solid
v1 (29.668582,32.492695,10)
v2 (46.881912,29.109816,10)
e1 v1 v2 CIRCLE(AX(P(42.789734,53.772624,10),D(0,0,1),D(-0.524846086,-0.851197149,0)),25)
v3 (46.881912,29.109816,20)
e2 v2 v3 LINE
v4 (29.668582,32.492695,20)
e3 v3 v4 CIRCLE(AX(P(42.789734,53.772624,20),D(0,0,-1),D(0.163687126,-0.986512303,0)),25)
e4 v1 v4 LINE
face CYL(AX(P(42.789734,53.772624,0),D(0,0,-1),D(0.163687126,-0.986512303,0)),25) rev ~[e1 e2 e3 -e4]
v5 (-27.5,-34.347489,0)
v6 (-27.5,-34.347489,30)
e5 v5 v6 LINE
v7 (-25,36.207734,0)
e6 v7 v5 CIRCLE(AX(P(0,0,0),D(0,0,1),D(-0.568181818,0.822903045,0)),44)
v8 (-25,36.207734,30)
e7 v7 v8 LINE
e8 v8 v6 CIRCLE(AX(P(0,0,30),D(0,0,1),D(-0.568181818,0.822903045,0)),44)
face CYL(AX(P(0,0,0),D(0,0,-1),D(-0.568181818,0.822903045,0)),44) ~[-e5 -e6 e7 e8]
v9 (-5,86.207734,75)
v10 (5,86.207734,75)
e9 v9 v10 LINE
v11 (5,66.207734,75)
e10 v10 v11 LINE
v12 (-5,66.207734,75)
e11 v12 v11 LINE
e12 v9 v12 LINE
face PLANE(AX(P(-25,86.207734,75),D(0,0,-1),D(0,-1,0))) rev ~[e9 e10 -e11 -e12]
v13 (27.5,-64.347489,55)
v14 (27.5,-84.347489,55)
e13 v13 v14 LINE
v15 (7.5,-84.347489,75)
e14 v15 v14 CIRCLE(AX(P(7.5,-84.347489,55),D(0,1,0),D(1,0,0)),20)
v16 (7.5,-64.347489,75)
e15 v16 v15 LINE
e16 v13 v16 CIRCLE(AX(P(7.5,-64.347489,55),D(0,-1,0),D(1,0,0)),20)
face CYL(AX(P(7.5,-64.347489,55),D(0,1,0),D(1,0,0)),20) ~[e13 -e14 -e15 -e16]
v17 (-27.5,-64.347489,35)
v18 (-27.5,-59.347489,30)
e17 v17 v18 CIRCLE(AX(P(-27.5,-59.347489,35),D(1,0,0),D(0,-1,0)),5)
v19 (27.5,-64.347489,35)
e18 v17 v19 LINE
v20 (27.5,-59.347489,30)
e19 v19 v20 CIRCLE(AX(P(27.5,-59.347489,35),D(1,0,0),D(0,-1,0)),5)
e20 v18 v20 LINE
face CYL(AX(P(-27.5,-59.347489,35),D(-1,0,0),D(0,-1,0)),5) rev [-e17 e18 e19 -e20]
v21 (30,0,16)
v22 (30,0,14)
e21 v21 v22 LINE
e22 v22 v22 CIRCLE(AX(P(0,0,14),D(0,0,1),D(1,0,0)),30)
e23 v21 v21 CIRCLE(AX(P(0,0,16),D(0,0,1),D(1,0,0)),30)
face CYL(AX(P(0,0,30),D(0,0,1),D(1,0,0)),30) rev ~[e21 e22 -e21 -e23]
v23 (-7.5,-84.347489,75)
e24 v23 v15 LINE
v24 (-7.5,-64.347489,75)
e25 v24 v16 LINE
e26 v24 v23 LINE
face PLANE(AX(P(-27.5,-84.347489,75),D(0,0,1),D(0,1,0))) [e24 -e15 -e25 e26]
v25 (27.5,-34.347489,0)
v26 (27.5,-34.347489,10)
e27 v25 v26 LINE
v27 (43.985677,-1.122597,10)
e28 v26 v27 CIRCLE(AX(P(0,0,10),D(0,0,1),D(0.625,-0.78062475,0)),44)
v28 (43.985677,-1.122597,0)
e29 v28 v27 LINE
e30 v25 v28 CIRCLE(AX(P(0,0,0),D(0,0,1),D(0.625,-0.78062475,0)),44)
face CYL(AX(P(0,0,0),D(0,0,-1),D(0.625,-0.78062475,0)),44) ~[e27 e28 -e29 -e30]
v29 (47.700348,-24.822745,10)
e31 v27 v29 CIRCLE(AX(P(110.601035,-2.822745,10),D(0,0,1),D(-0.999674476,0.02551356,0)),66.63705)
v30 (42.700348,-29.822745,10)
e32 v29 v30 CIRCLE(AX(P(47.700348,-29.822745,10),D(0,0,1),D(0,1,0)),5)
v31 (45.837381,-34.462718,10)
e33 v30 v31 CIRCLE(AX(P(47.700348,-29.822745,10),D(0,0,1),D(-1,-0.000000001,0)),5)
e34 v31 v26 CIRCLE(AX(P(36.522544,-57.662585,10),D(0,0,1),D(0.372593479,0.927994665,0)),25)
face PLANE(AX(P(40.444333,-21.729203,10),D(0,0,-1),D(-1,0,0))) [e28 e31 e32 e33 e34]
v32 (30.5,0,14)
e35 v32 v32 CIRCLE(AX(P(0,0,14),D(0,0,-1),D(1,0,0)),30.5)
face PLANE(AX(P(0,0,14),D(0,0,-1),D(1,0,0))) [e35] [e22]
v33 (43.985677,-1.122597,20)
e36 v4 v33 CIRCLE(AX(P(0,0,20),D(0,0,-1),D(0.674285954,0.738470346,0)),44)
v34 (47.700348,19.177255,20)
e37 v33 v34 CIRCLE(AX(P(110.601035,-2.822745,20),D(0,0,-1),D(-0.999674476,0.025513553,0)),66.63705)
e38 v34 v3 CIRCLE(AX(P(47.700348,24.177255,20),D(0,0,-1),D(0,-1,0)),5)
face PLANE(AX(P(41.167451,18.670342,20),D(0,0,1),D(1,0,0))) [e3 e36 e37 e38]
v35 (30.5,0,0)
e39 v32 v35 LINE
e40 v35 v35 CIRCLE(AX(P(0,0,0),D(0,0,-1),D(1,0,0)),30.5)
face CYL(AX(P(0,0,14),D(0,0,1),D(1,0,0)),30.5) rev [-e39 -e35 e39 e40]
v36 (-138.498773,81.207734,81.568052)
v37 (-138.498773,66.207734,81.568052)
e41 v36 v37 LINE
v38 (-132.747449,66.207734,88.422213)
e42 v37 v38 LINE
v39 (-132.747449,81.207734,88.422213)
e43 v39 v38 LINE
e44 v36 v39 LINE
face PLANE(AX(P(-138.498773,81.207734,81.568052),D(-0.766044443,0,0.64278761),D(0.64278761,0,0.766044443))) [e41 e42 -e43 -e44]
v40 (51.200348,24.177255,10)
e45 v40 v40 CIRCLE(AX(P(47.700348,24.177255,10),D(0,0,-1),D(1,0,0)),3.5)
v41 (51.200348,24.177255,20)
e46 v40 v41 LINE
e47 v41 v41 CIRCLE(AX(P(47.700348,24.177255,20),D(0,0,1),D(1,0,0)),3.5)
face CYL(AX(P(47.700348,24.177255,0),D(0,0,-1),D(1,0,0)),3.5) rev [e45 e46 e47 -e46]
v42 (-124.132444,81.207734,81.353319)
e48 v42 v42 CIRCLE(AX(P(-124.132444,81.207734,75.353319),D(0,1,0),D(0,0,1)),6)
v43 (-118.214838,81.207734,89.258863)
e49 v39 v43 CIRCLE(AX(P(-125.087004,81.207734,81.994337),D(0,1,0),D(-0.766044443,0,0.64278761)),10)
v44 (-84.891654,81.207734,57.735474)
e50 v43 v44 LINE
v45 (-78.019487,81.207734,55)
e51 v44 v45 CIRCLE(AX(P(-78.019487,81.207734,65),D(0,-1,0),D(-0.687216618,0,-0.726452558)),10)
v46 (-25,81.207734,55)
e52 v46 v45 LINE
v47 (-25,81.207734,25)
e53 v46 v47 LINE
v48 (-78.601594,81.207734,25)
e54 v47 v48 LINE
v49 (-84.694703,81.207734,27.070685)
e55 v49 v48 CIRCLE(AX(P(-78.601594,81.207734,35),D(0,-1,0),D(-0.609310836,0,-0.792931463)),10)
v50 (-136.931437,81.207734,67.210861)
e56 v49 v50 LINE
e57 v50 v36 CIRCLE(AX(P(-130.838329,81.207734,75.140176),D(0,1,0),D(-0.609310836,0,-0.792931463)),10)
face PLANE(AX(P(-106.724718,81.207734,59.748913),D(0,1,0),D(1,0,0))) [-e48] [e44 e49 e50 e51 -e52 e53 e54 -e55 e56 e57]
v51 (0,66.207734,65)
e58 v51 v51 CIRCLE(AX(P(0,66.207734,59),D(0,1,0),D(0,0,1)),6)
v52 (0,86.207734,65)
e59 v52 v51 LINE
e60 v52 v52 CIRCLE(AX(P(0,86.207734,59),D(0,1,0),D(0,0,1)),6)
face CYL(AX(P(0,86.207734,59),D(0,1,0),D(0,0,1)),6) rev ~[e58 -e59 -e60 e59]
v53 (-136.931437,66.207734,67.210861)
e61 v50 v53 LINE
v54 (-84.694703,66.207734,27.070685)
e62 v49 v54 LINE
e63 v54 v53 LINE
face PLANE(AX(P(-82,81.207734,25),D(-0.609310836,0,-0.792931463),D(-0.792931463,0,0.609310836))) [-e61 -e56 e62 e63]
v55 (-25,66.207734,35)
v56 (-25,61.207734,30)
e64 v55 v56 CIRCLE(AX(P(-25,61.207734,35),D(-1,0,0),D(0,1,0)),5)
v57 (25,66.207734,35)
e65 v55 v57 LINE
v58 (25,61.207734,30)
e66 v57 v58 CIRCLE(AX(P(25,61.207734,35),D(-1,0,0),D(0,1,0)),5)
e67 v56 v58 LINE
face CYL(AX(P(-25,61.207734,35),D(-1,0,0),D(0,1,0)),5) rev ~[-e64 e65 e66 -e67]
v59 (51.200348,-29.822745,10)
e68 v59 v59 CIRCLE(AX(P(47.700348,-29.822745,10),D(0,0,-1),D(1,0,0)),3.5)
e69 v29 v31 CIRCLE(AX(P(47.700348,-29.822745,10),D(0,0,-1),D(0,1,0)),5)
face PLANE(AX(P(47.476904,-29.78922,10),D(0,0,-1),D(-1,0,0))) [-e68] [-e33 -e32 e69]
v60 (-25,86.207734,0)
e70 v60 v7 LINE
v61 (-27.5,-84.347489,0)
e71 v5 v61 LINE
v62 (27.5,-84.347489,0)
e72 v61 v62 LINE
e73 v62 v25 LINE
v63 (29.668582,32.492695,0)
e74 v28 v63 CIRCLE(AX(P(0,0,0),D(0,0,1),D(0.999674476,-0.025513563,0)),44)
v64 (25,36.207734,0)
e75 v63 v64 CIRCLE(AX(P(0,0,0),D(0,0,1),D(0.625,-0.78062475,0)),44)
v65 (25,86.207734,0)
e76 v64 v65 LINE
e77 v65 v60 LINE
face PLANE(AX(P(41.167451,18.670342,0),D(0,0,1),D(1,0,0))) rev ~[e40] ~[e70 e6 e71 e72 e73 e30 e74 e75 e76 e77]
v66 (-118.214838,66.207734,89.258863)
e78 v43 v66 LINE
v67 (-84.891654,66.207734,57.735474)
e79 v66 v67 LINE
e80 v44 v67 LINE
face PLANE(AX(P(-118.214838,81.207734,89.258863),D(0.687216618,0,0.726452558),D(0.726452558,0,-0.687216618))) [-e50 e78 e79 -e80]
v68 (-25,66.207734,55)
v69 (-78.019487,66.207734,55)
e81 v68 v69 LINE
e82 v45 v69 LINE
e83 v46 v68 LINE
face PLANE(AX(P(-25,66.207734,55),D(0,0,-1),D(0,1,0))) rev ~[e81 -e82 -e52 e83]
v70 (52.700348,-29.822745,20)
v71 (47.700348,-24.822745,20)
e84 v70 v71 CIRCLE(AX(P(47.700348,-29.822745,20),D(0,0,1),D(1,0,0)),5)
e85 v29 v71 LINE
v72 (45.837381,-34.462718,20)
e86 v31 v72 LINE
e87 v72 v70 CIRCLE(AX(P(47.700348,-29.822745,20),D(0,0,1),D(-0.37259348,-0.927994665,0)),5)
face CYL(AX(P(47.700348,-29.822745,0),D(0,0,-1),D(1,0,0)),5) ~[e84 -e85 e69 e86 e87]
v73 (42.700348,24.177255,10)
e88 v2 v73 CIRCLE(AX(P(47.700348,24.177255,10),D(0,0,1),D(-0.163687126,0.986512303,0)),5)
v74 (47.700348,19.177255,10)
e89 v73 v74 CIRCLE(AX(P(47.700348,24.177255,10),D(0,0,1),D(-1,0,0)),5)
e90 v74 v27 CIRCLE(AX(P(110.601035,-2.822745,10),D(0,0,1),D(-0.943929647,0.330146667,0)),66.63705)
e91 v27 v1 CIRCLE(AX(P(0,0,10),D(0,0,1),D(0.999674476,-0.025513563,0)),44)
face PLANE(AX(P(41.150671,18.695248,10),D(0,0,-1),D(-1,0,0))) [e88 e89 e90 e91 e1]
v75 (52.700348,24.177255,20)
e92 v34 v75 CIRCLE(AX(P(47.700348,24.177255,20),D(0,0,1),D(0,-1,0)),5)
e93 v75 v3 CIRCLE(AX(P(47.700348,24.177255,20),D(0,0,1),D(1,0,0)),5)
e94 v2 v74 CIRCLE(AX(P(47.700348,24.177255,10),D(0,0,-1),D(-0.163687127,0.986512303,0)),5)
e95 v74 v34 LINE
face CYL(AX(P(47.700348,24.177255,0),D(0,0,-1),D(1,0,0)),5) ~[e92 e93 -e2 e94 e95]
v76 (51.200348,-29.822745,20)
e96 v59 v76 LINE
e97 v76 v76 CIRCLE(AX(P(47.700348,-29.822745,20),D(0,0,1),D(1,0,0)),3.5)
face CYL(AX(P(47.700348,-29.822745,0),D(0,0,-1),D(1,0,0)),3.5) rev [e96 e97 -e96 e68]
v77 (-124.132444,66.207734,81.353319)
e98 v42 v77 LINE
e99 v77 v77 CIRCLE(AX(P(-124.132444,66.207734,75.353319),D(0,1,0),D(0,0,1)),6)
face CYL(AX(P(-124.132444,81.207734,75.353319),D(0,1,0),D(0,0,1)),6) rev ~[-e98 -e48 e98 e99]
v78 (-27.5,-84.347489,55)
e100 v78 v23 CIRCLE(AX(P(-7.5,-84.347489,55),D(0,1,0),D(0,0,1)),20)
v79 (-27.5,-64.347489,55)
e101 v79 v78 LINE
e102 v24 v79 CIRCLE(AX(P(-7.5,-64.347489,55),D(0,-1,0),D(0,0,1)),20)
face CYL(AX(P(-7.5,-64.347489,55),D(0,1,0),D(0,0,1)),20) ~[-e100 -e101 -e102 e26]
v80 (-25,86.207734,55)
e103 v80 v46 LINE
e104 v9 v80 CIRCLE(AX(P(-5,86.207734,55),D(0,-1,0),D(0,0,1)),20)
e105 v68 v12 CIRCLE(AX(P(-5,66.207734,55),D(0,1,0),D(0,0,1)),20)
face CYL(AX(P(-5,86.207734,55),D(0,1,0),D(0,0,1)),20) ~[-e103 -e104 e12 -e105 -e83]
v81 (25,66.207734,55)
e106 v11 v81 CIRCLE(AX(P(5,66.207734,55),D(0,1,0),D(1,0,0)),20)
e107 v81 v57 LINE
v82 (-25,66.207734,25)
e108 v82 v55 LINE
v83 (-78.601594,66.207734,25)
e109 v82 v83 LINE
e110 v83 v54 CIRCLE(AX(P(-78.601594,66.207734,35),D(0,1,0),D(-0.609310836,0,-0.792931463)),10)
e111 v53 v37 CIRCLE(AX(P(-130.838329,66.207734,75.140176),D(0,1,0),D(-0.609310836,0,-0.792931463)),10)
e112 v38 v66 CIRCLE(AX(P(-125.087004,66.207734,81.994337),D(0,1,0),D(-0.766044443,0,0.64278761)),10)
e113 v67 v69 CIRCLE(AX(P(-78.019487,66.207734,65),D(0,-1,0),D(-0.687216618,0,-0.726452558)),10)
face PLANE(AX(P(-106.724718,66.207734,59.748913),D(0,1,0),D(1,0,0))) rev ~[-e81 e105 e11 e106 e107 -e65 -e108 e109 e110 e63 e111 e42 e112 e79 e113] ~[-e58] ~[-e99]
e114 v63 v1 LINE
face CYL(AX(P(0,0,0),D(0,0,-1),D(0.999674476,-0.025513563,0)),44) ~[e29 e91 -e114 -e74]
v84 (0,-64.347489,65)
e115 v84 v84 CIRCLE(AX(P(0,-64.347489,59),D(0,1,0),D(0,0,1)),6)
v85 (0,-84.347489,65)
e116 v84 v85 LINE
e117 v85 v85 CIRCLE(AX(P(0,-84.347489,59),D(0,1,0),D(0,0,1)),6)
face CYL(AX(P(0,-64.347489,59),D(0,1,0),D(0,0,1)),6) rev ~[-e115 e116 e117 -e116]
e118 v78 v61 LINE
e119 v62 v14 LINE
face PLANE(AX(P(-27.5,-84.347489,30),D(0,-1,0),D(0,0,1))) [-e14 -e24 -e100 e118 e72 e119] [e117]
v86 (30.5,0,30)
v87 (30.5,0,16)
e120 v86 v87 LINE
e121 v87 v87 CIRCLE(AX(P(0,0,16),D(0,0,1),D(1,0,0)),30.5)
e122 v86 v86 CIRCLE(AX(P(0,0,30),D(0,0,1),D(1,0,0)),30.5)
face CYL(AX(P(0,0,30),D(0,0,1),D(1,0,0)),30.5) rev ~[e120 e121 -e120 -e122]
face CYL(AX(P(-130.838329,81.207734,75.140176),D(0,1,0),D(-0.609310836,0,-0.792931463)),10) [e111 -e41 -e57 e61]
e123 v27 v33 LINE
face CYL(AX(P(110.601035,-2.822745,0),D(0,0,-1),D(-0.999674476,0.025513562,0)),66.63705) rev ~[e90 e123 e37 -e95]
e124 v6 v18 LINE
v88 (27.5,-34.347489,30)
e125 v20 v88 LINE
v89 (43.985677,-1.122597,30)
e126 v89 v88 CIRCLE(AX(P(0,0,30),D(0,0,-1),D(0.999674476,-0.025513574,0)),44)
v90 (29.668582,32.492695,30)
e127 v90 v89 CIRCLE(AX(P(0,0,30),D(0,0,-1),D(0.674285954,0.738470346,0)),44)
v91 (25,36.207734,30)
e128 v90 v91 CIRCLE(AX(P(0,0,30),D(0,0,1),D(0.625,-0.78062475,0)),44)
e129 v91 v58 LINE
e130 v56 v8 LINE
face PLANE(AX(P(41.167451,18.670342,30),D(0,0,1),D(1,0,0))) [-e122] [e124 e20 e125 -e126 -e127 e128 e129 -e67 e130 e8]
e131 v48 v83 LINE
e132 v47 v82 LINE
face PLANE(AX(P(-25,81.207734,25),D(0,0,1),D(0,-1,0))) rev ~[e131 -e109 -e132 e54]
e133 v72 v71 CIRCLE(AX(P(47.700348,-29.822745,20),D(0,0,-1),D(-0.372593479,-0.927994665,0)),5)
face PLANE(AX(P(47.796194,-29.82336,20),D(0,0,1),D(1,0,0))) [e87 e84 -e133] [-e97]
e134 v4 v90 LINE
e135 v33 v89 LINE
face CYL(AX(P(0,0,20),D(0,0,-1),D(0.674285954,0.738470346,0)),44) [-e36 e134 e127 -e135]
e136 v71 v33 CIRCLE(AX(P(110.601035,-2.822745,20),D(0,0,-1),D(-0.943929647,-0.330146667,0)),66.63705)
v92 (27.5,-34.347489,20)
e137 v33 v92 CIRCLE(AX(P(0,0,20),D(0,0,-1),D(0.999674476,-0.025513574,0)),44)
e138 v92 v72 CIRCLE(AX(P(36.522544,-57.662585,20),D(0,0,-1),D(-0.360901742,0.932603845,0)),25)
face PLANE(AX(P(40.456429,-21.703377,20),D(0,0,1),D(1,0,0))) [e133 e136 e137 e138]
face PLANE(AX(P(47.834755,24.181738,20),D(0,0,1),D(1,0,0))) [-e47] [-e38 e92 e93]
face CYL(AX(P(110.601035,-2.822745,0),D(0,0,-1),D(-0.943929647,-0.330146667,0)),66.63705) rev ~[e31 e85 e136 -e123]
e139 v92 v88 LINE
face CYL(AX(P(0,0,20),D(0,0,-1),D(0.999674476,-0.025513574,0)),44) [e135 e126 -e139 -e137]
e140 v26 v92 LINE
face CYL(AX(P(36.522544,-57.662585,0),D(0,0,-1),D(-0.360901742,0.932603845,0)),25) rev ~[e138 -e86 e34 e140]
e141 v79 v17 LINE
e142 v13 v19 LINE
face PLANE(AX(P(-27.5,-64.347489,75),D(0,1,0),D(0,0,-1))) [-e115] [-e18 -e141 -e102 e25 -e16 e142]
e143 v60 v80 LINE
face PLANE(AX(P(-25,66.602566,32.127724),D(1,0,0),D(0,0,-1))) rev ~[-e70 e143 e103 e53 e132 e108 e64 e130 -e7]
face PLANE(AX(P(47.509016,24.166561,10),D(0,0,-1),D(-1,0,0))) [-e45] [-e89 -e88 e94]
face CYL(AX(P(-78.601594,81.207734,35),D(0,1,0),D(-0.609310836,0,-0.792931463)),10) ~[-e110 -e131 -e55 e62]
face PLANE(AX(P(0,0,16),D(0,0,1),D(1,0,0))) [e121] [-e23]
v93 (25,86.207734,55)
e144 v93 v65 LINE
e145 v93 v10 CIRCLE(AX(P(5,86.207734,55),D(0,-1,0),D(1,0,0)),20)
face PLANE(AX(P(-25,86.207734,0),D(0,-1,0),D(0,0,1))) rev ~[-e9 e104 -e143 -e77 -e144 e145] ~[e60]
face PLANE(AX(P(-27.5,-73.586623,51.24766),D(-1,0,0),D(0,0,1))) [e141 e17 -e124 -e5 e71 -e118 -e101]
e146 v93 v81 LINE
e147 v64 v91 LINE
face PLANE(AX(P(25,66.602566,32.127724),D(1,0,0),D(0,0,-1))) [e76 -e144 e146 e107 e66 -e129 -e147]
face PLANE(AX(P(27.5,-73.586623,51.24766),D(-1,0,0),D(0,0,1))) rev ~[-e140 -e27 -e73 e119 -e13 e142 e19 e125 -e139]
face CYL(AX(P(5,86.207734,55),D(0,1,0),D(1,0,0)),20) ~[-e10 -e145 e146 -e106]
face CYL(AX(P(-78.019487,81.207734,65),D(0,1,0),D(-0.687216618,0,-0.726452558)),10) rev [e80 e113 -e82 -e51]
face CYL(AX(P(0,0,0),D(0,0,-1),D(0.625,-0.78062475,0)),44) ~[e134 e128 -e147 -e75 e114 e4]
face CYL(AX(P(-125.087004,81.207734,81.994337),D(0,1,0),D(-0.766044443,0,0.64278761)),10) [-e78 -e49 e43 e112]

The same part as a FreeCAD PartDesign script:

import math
import FreeCAD as App
import Part
import Sketcher

V = App.Vector
Q = App.Units.Quantity

doc = App.newDocument("Part")
body = doc.addObject("PartDesign::Body", "Body")

sketch1 = body.newObject("Sketcher::SketchObject", "Sketch")
sketch1.AttachmentSupport = (doc.getObject("XY_Plane"), [""])
sketch1.MapMode = "FlatFace"
sketch1.addGeometry(Part.LineSegment(V(-25, 86.207734, 0), V(-25, 36.207734, 0)), False)
sketch1.addGeometry(Part.ArcOfCircle(Part.Circle(V(0, 0, 0), V(0, 0, 1), 44), math.radians(124.623535), math.radians(231.317813)), False)
sketch1.addGeometry(Part.LineSegment(V(-27.5, -34.347489, 0), V(-27.5, -84.347489, 0)), False)
sketch1.addGeometry(Part.LineSegment(V(-27.5, -84.347489, 0), V(27.5, -84.347489, 0)), False)
sketch1.addGeometry(Part.LineSegment(V(27.5, -84.347489, 0), V(27.5, -34.347489, 0)), False)
sketch1.addGeometry(Part.ArcOfCircle(Part.Circle(V(0, 0, 0), V(0, 0, 1), 44), math.radians(-51.317813), math.radians(55.376465)), False)
sketch1.addGeometry(Part.LineSegment(V(25, 36.207734, 0), V(25, 86.207734, 0)), False)
sketch1.addGeometry(Part.LineSegment(V(25, 86.207734, 0), V(-25, 86.207734, 0)), False)
sketch1.addConstraint(Sketcher.Constraint("Coincident", 0, 2, 1, 1))
sketch1.addConstraint(Sketcher.Constraint("Coincident", 1, 2, 2, 1))
sketch1.addConstraint(Sketcher.Constraint("Coincident", 2, 2, 3, 1))
sketch1.addConstraint(Sketcher.Constraint("Coincident", 3, 2, 4, 1))
sketch1.addConstraint(Sketcher.Constraint("Coincident", 4, 2, 5, 1))
sketch1.addConstraint(Sketcher.Constraint("Coincident", 5, 2, 6, 1))
sketch1.addConstraint(Sketcher.Constraint("Coincident", 6, 2, 7, 1))
sketch1.addConstraint(Sketcher.Constraint("Coincident", 7, 2, 0, 1))
sketch1.addConstraint(Sketcher.Constraint("Vertical", 0))
sketch1.addConstraint(Sketcher.Constraint("Vertical", 2))
sketch1.addConstraint(Sketcher.Constraint("Horizontal", 3))
sketch1.addConstraint(Sketcher.Constraint("Vertical", 4))
sketch1.addConstraint(Sketcher.Constraint("Vertical", 6))
sketch1.addConstraint(Sketcher.Constraint("Horizontal", 7))
sketch1.addConstraint(Sketcher.Constraint("Coincident", 1, 3, -1, 1))
sketch1.addConstraint(Sketcher.Constraint("Coincident", 5, 3, -1, 1))
sketch1.addConstraint(Sketcher.Constraint("Equal", 1, 5))
sketch1.addConstraint(Sketcher.Constraint("Horizontal", 1, 2, 4, 2))
sketch1.addConstraint(Sketcher.Constraint("Horizontal", 0, 2, 5, 2))
sketch1.addConstraint(Sketcher.Constraint("Equal", 7, 0))
sketch1.addConstraint(Sketcher.Constraint("Equal", 0, 2))
sketch1.addConstraint(Sketcher.Constraint("Radius", 1, 44.0))
sketch1.addConstraint(Sketcher.Constraint("DistanceX", 3, 1, 3, 2, 55.0))
sketch1.addConstraint(Sketcher.Constraint("DistanceX", 7, 2, 7, 1, 50.0))
pad1 = body.newObject("PartDesign::Pad", "Pad")
pad1.Profile = sketch1
pad1.Length = 30

sketch2 = body.newObject("Sketcher::SketchObject", "Sketch001")
sketch2.AttachmentSupport = (doc.getObject("YZ_Plane"), [""])
sketch2.MapMode = "FlatFace"
sketch2.AttachmentOffset = App.Placement(V(0, 0, -27.5), App.Rotation())
sketch2.addGeometry(Part.LineSegment(V(-59.347489, 30, 0), V(-84.347489, 30, 0)), False)
sketch2.addGeometry(Part.LineSegment(V(-84.347489, 30, 0), V(-84.347489, 75, 0)), False)
sketch2.addGeometry(Part.LineSegment(V(-84.347489, 75, 0), V(-64.347489, 75, 0)), False)
sketch2.addGeometry(Part.LineSegment(V(-64.347489, 75, 0), V(-64.347489, 35, 0)), False)
sketch2.addGeometry(Part.ArcOfCircle(Part.Circle(V(-59.347489, 35, 0), V(0, 0, 1), 5), math.radians(180), math.radians(270)), False)
sketch2.addConstraint(Sketcher.Constraint("Coincident", 0, 2, 1, 1))
sketch2.addConstraint(Sketcher.Constraint("Coincident", 1, 2, 2, 1))
sketch2.addConstraint(Sketcher.Constraint("Coincident", 2, 2, 3, 1))
sketch2.addConstraint(Sketcher.Constraint("Tangent", 3, 2, 4, 1))
sketch2.addConstraint(Sketcher.Constraint("Tangent", 4, 2, 0, 1))
sketch2.addConstraint(Sketcher.Constraint("Horizontal", 0))
sketch2.addConstraint(Sketcher.Constraint("Vertical", 1))
sketch2.addConstraint(Sketcher.Constraint("Horizontal", 2))
sketch2.addConstraint(Sketcher.Constraint("Vertical", 3))
sketch2.addConstraint(Sketcher.Constraint("Radius", 4, 5.0))
sketch2.addConstraint(Sketcher.Constraint("DistanceX", 0, 2, 0, 1, 25.0))
sketch2.addConstraint(Sketcher.Constraint("DistanceY", 1, 1, 1, 2, 45.0))
sketch2.addConstraint(Sketcher.Constraint("DistanceY", -1, 1, 4, 3, 35.0))
sketch2.addConstraint(Sketcher.Constraint("DistanceX", 4, 3, -1, 1, 59.347489))
pad2 = body.newObject("PartDesign::Pad", "Pad001")
pad2.Profile = sketch2
pad2.Length = 55

sketch3 = body.newObject("Sketcher::SketchObject", "Sketch002")
sketch3.AttachmentSupport = (doc.getObject("YZ_Plane"), [""])
sketch3.MapMode = "FlatFace"
sketch3.AttachmentOffset = App.Placement(V(0, 0, -25), App.Rotation())
sketch3.addGeometry(Part.LineSegment(V(66.207734, 75, 0), V(86.207734, 75, 0)), False)
sketch3.addGeometry(Part.LineSegment(V(86.207734, 75, 0), V(86.207734, 0, 0)), False)
sketch3.addGeometry(Part.LineSegment(V(86.207734, 0, 0), V(36.207734, 0, 0)), False)
sketch3.addGeometry(Part.LineSegment(V(36.207734, 0, 0), V(36.207734, 30, 0)), False)
sketch3.addGeometry(Part.LineSegment(V(36.207734, 30, 0), V(61.207734, 30, 0)), False)
sketch3.addGeometry(Part.ArcOfCircle(Part.Circle(V(61.207734, 35, 0), V(0, 0, 1), 5), math.radians(-90), math.radians(0)), False)
sketch3.addGeometry(Part.LineSegment(V(66.207734, 35, 0), V(66.207734, 75, 0)), False)
sketch3.addConstraint(Sketcher.Constraint("Coincident", 0, 2, 1, 1))
sketch3.addConstraint(Sketcher.Constraint("Coincident", 1, 2, 2, 1))
sketch3.addConstraint(Sketcher.Constraint("Coincident", 2, 2, 3, 1))
sketch3.addConstraint(Sketcher.Constraint("Coincident", 3, 2, 4, 1))
sketch3.addConstraint(Sketcher.Constraint("Tangent", 4, 2, 5, 1))
sketch3.addConstraint(Sketcher.Constraint("Tangent", 5, 2, 6, 1))
sketch3.addConstraint(Sketcher.Constraint("Coincident", 6, 2, 0, 1))
sketch3.addConstraint(Sketcher.Constraint("Horizontal", 0))
sketch3.addConstraint(Sketcher.Constraint("Vertical", 1))
sketch3.addConstraint(Sketcher.Constraint("Horizontal", 2))
sketch3.addConstraint(Sketcher.Constraint("Vertical", 3))
sketch3.addConstraint(Sketcher.Constraint("Horizontal", 4))
sketch3.addConstraint(Sketcher.Constraint("Vertical", 6))
sketch3.addConstraint(Sketcher.Constraint("PointOnObject", 1, 2, -1))
sketch3.addConstraint(Sketcher.Constraint("Radius", 5, 5.0))
sketch3.addConstraint(Sketcher.Constraint("DistanceX", 0, 1, 0, 2, 20.0))
sketch3.addConstraint(Sketcher.Constraint("DistanceX", 2, 2, 2, 1, 50.0))
sketch3.addConstraint(Sketcher.Constraint("DistanceY", 1, 2, 1, 1, 75.0))
sketch3.addConstraint(Sketcher.Constraint("DistanceY", 3, 1, 3, 2, 30.0))
sketch3.addConstraint(Sketcher.Constraint("DistanceX", -1, 1, 5, 3, 61.207734))
pad3 = body.newObject("PartDesign::Pad", "Pad002")
pad3.Profile = sketch3
pad3.Length = 50

sketch4 = body.newObject("Sketcher::SketchObject", "Sketch003")
sketch4.AttachmentSupport = (doc.getObject("XZ_Plane"), [""])
sketch4.MapMode = "FlatFace"
sketch4.AttachmentOffset = App.Placement(V(0, 0, 64.347489), App.Rotation())
sketch4.addGeometry(Part.LineSegment(V(-27.5, 75, 0), V(-7.5, 75, 0)), False)
sketch4.addGeometry(Part.ArcOfCircle(Part.Circle(V(-7.5, 55, 0), V(0, 0, 1), 20), math.radians(90), math.radians(180)), False)
sketch4.addGeometry(Part.LineSegment(V(-27.5, 55, 0), V(-27.5, 75, 0)), False)
sketch4.addGeometry(Part.ArcOfCircle(Part.Circle(V(7.5, 55, 0), V(0, 0, 1), 20), math.radians(0), math.radians(90)), False)
sketch4.addGeometry(Part.LineSegment(V(7.5, 75, 0), V(27.5, 75, 0)), False)
sketch4.addGeometry(Part.LineSegment(V(27.5, 75, 0), V(27.5, 55, 0)), False)
sketch4.addGeometry(Part.Circle(V(0, 59, 0), V(0, 0, 1), 6), False)
sketch4.addConstraint(Sketcher.Constraint("Tangent", 0, 2, 1, 1))
sketch4.addConstraint(Sketcher.Constraint("Tangent", 1, 2, 2, 1))
sketch4.addConstraint(Sketcher.Constraint("Coincident", 2, 2, 0, 1))
sketch4.addConstraint(Sketcher.Constraint("Tangent", 3, 2, 4, 1))
sketch4.addConstraint(Sketcher.Constraint("Coincident", 4, 2, 5, 1))
sketch4.addConstraint(Sketcher.Constraint("Tangent", 5, 2, 3, 1))
sketch4.addConstraint(Sketcher.Constraint("Horizontal", 0))
sketch4.addConstraint(Sketcher.Constraint("Vertical", 2))
sketch4.addConstraint(Sketcher.Constraint("Horizontal", 4))
sketch4.addConstraint(Sketcher.Constraint("Vertical", 5))
sketch4.addConstraint(Sketcher.Constraint("Equal", 1, 3))
sketch4.addConstraint(Sketcher.Constraint("Symmetric", 1, 3, 3, 3, -2))
sketch4.addConstraint(Sketcher.Constraint("PointOnObject", 6, 3, -2))
sketch4.addConstraint(Sketcher.Constraint("Diameter", 6, 12.0))
sketch4.addConstraint(Sketcher.Constraint("Radius", 1, 20.0))
sketch4.addConstraint(Sketcher.Constraint("DistanceY", -1, 1, 1, 3, 55.0))
sketch4.addConstraint(Sketcher.Constraint("DistanceY", -1, 1, 6, 3, 59.0))
sketch4.addConstraint(Sketcher.Constraint("DistanceX", 1, 3, 3, 3, 15.0))
pocket1 = body.newObject("PartDesign::Pocket", "Pocket")
pocket1.Profile = sketch4
pocket1.Type = "ThroughAll"
pocket1.Reversed = True

sketch5 = body.newObject("Sketcher::SketchObject", "Sketch004")
sketch5.AttachmentSupport = (doc.getObject("XZ_Plane"), [""])
sketch5.MapMode = "FlatFace"
sketch5.AttachmentOffset = App.Placement(V(0, 0, -86.207734), App.Rotation())
sketch5.addGeometry(Part.Circle(V(0, 59, 0), V(0, 0, 1), 6), False)
sketch5.addGeometry(Part.ArcOfCircle(Part.Circle(V(-5, 55, 0), V(0, 0, 1), 20), math.radians(90), math.radians(180)), False)
sketch5.addGeometry(Part.LineSegment(V(-25, 55, 0), V(-25, 75, 0)), False)
sketch5.addGeometry(Part.LineSegment(V(-25, 75, 0), V(-5, 75, 0)), False)
sketch5.addGeometry(Part.LineSegment(V(25, 75, 0), V(25, 55, 0)), False)
sketch5.addGeometry(Part.ArcOfCircle(Part.Circle(V(5, 55, 0), V(0, 0, 1), 20), math.radians(0), math.radians(90)), False)
sketch5.addGeometry(Part.LineSegment(V(5, 75, 0), V(25, 75, 0)), False)
sketch5.addConstraint(Sketcher.Constraint("Tangent", 1, 2, 2, 1))
sketch5.addConstraint(Sketcher.Constraint("Coincident", 2, 2, 3, 1))
sketch5.addConstraint(Sketcher.Constraint("Tangent", 3, 2, 1, 1))
sketch5.addConstraint(Sketcher.Constraint("Tangent", 4, 2, 5, 1))
sketch5.addConstraint(Sketcher.Constraint("Tangent", 5, 2, 6, 1))
sketch5.addConstraint(Sketcher.Constraint("Coincident", 6, 2, 4, 1))
sketch5.addConstraint(Sketcher.Constraint("Vertical", 2))
sketch5.addConstraint(Sketcher.Constraint("Horizontal", 3))
sketch5.addConstraint(Sketcher.Constraint("Vertical", 4))
sketch5.addConstraint(Sketcher.Constraint("Horizontal", 6))
sketch5.addConstraint(Sketcher.Constraint("Equal", 1, 5))
sketch5.addConstraint(Sketcher.Constraint("Symmetric", 1, 3, 5, 3, -2))
sketch5.addConstraint(Sketcher.Constraint("PointOnObject", 0, 3, -2))
sketch5.addConstraint(Sketcher.Constraint("Diameter", 0, 12.0))
sketch5.addConstraint(Sketcher.Constraint("Radius", 1, 20.0))
sketch5.addConstraint(Sketcher.Constraint("DistanceY", -1, 1, 0, 3, 59.0))
sketch5.addConstraint(Sketcher.Constraint("DistanceX", 1, 3, -1, 1, 5.0))
sketch5.addConstraint(Sketcher.Constraint("DistanceY", -1, 1, 1, 3, 55.0))
pocket2 = body.newObject("PartDesign::Pocket", "Pocket001")
pocket2.Profile = sketch5
pocket2.Length = 50
pocket2.Reversed = True

sketch6 = body.newObject("Sketcher::SketchObject", "Sketch005")
sketch6.AttachmentSupport = (doc.getObject("YZ_Plane"), [""])
sketch6.MapMode = "FlatFace"
sketch6.AttachmentOffset = App.Placement(V(0, 0, -25), App.Rotation())
sketch6.addGeometry(Part.LineSegment(V(66.207734, 55, 0), V(81.207734, 55, 0)), False)
sketch6.addGeometry(Part.LineSegment(V(81.207734, 55, 0), V(81.207734, 25, 0)), False)
sketch6.addGeometry(Part.LineSegment(V(81.207734, 25, 0), V(66.207734, 25, 0)), False)
sketch6.addGeometry(Part.LineSegment(V(66.207734, 25, 0), V(66.207734, 55, 0)), False)
sketch6.addConstraint(Sketcher.Constraint("Coincident", 0, 2, 1, 1))
sketch6.addConstraint(Sketcher.Constraint("Coincident", 1, 2, 2, 1))
sketch6.addConstraint(Sketcher.Constraint("Coincident", 2, 2, 3, 1))
sketch6.addConstraint(Sketcher.Constraint("Coincident", 3, 2, 0, 1))
sketch6.addConstraint(Sketcher.Constraint("Horizontal", 0))
sketch6.addConstraint(Sketcher.Constraint("Vertical", 1))
sketch6.addConstraint(Sketcher.Constraint("Horizontal", 2))
sketch6.addConstraint(Sketcher.Constraint("Vertical", 3))
sketch6.addConstraint(Sketcher.Constraint("DistanceX", 0, 1, 0, 2, 15.0))
sketch6.addConstraint(Sketcher.Constraint("DistanceY", 1, 2, 1, 1, 30.0))
sketch6.addConstraint(Sketcher.Constraint("DistanceY", -1, 1, 0, 2, 55.0))
sketch6.addConstraint(Sketcher.Constraint("DistanceX", -1, 1, 0, 2, 81.207734))
pad4 = body.newObject("PartDesign::Pad", "Pad003")
pad4.Profile = sketch6
pad4.Length = 57
pad4.Reversed = True

sketch7 = body.newObject("Sketcher::SketchObject", "Sketch006")
sketch7.AttachmentSupport = (doc.getObject("XZ_Plane"), [""])
sketch7.MapMode = "FlatFace"
sketch7.AttachmentOffset = App.Placement(V(0, 0, -81.207734), App.Rotation())
sketch7.addGeometry(Part.LineSegment(V(-82, 25, 0), V(-136.931437, 67.210861, 0)), False)
sketch7.addGeometry(Part.ArcOfCircle(Part.Circle(V(-130.838329, 75.140176, 0), V(0, 0, 1), 10), math.radians(140), math.radians(232.460311)), False)
sketch7.addGeometry(Part.LineSegment(V(-138.498773, 81.568052, 0), V(-132.747449, 88.422213, 0)), False)
sketch7.addGeometry(Part.ArcOfCircle(Part.Circle(V(-125.087004, 81.994337, 0), V(0, 0, 1), 10), math.radians(46.589818), math.radians(140)), False)
sketch7.addGeometry(Part.LineSegment(V(-118.214838, 89.258863, 0), V(-84.891654, 57.735474, 0)), False)
sketch7.addGeometry(Part.ArcOfCircle(Part.Circle(V(-78.019487, 65, 0), V(0, 0, 1), 10), math.radians(-133.410182), math.radians(-90)), False)
sketch7.addGeometry(Part.LineSegment(V(-78.019487, 55, 0), V(-82, 55, 0)), False)
sketch7.addGeometry(Part.LineSegment(V(-82, 55, 0), V(-82, 25, 0)), False)
sketch7.addConstraint(Sketcher.Constraint("Tangent", 0, 2, 1, 2))
sketch7.addConstraint(Sketcher.Constraint("Tangent", 1, 1, 2, 1))
sketch7.addConstraint(Sketcher.Constraint("Tangent", 2, 2, 3, 2))
sketch7.addConstraint(Sketcher.Constraint("Tangent", 3, 1, 4, 1))
sketch7.addConstraint(Sketcher.Constraint("Tangent", 4, 2, 5, 1))
sketch7.addConstraint(Sketcher.Constraint("Tangent", 5, 2, 6, 1))
sketch7.addConstraint(Sketcher.Constraint("Coincident", 6, 2, 7, 1))
sketch7.addConstraint(Sketcher.Constraint("Coincident", 7, 2, 0, 1))
sketch7.addConstraint(Sketcher.Constraint("Horizontal", 6))
sketch7.addConstraint(Sketcher.Constraint("Vertical", 7))
sketch7.addConstraint(Sketcher.Constraint("Equal", 1, 3))
sketch7.addConstraint(Sketcher.Constraint("Equal", 3, 5))
sketch7.addConstraint(Sketcher.Constraint("Radius", 1, 10.0))
sketch7.addConstraint(Sketcher.Constraint("DistanceY", 7, 2, 7, 1, 30.0))
sketch7.addConstraint(Sketcher.Constraint("Angle", 2, Q("50 deg")))
sketch7.addConstraint(Sketcher.Constraint("DistanceY", -1, 1, 5, 3, 65.0))
sketch7.addConstraint(Sketcher.Constraint("DistanceX", 6, 2, -1, 1, 82.0))
sketch7.addConstraint(Sketcher.Constraint("DistanceY", 0, 2, 3, 1, 22.048002))
sketch7.addConstraint(Sketcher.Constraint("Distance", 0, 69.2764))
sketch7.addConstraint(Sketcher.Constraint("DistanceX", 0, 2, 3, 1, 18.716599))
sketch7.addConstraint(Sketcher.Constraint("DistanceY", 4, 2, 1, 3, 17.404701))
pad5 = body.newObject("PartDesign::Pad", "Pad004")
pad5.Profile = sketch7
pad5.Length = 15

sketch8 = body.newObject("Sketcher::SketchObject", "Sketch007")
sketch8.AttachmentSupport = (doc.getObject("XZ_Plane"), [""])
sketch8.MapMode = "FlatFace"
sketch8.AttachmentOffset = App.Placement(V(0, 0, -81.207734), App.Rotation())
sketch8.addGeometry(Part.LineSegment(V(-82, 25, 0), V(-84.694703, 27.070685, 0)), False)
sketch8.addGeometry(Part.ArcOfCircle(Part.Circle(V(-78.601594, 35, 0), V(0, 0, 1), 10), math.radians(-127.539689), math.radians(-90)), False)
sketch8.addGeometry(Part.LineSegment(V(-78.601594, 25, 0), V(-82, 25, 0)), False)
sketch8.addConstraint(Sketcher.Constraint("Tangent", 0, 2, 1, 1))
sketch8.addConstraint(Sketcher.Constraint("Tangent", 1, 2, 2, 1))
sketch8.addConstraint(Sketcher.Constraint("Coincident", 2, 2, 0, 1))
sketch8.addConstraint(Sketcher.Constraint("Horizontal", 2))
sketch8.addConstraint(Sketcher.Constraint("Radius", 1, 10.0))
sketch8.addConstraint(Sketcher.Constraint("DistanceY", -1, 1, 1, 3, 35.0))
sketch8.addConstraint(Sketcher.Constraint("DistanceX", 2, 2, -1, 1, 82.0))
sketch8.addConstraint(Sketcher.Constraint("DistanceX", 2, 2, 2, 1, 3.398406))
pocket3 = body.newObject("PartDesign::Pocket", "Pocket002")
pocket3.Profile = sketch8
pocket3.Length = 20
pocket3.Reversed = True

sketch9 = body.newObject("Sketcher::SketchObject", "Sketch008")
sketch9.AttachmentSupport = (doc.getObject("XZ_Plane"), [""])
sketch9.MapMode = "FlatFace"
sketch9.AttachmentOffset = App.Placement(V(0, 0, -81.207734), App.Rotation())
sketch9.addGeometry(Part.Circle(V(-124.132444, 75.353319, 0), V(0, 0, 1), 6), False)
sketch9.addConstraint(Sketcher.Constraint("Diameter", 0, 12.0))
sketch9.addConstraint(Sketcher.Constraint("DistanceY", -1, 1, 0, 3, 75.353319))
sketch9.addConstraint(Sketcher.Constraint("DistanceX", 0, 3, -1, 1, 124.132444))
pocket4 = body.newObject("PartDesign::Pocket", "Pocket003")
pocket4.Profile = sketch9
pocket4.Length = 20
pocket4.Reversed = True

sketch10 = body.newObject("Sketcher::SketchObject", "Sketch009")
sketch10.AttachmentSupport = (doc.getObject("XY_Plane"), [""])
sketch10.MapMode = "FlatFace"
sketch10.AttachmentOffset = App.Placement(V(0, 0, 30), App.Rotation())
sketch10.addGeometry(Part.Circle(V(0, 0, 0), V(0, 0, 1), 30), False)
sketch10.addConstraint(Sketcher.Constraint("Coincident", 0, 3, -1, 1))
sketch10.addConstraint(Sketcher.Constraint("Diameter", 0, 60.0))
pocket5 = body.newObject("PartDesign::Pocket", "Pocket004")
pocket5.Profile = sketch10
pocket5.Type = "ThroughAll"

sketch11 = body.newObject("Sketcher::SketchObject", "Sketch010")
sketch11.AttachmentSupport = (doc.getObject("XY_Plane"), [""])
sketch11.MapMode = "FlatFace"
sketch11.AttachmentOffset = App.Placement(V(0, 0, 30), App.Rotation())
sketch11.addGeometry(Part.Circle(V(0, 0, 0), V(0, 0, 1), 30.5), False)
sketch11.addConstraint(Sketcher.Constraint("Coincident", 0, 3, -1, 1))
sketch11.addConstraint(Sketcher.Constraint("Diameter", 0, 61.0))
pocket6 = body.newObject("PartDesign::Pocket", "Pocket005")
pocket6.Profile = sketch11
pocket6.Length = 14

sketch12 = body.newObject("Sketcher::SketchObject", "Sketch011")
sketch12.AttachmentSupport = (doc.getObject("XY_Plane"), [""])
sketch12.MapMode = "FlatFace"
sketch12.AttachmentOffset = App.Placement(V(0, 0, 14), App.Rotation())
sketch12.addGeometry(Part.Circle(V(0, 0, 0), V(0, 0, 1), 30.5), False)
sketch12.addConstraint(Sketcher.Constraint("Coincident", 0, 3, -1, 1))
sketch12.addConstraint(Sketcher.Constraint("Diameter", 0, 61.0))
pocket7 = body.newObject("PartDesign::Pocket", "Pocket006")
pocket7.Profile = sketch12
pocket7.Length = 14

sketch13 = body.newObject("Sketcher::SketchObject", "Sketch012")
sketch13.AttachmentSupport = (doc.getObject("XY_Plane"), [""])
sketch13.MapMode = "FlatFace"
sketch13.addGeometry(Part.ArcOfCircle(Part.Circle(V(0, 0, 0), V(0, 0, 1), 44), math.radians(-1.461978), math.radians(47.601275)), False)
sketch13.addGeometry(Part.ArcOfCircle(Part.Circle(V(110.601035, -2.822745, 0), V(0, 0, 1), 66.63705), math.radians(160.722322), math.radians(178.538022)), False)
sketch13.addGeometry(Part.ArcOfCircle(Part.Circle(V(47.700348, 24.177255, 0), V(0, 0, 1), 5), math.radians(-90), math.radians(99.420975)), False)
sketch13.addGeometry(Part.ArcOfCircle(Part.Circle(V(42.789734, 53.772624, 0), V(0, 0, 1), 25), math.radians(-121.657882), math.radians(-80.579025)), False)
sketch13.addGeometry(Part.Circle(V(47.700348, 24.177255, 0), V(0, 0, 1), 3.5), False)
sketch13.addGeometry(Part.ArcOfCircle(Part.Circle(V(0, 0, 0), V(0, 0, 1), 44), math.radians(-51.317813), math.radians(-1.461978)), False)
sketch13.addGeometry(Part.ArcOfCircle(Part.Circle(V(36.522544, -57.662585, 0), V(0, 0, 1), 25), math.radians(68.124347), math.radians(111.155585)), False)
sketch13.addGeometry(Part.ArcOfCircle(Part.Circle(V(47.700348, -29.822745, 0), V(0, 0, 1), 5), math.radians(-111.875653), math.radians(90)), False)
sketch13.addGeometry(Part.ArcOfCircle(Part.Circle(V(110.601035, -2.822745, 0), V(0, 0, 1), 66.63705), math.radians(178.538022), math.radians(199.277678)), False)
sketch13.addGeometry(Part.Circle(V(47.700348, -29.822745, 0), V(0, 0, 1), 3.5), False)
sketch13.addConstraint(Sketcher.Constraint("Tangent", 0, 1, 1, 2))
sketch13.addConstraint(Sketcher.Constraint("Coincident", 1, 1, 2, 1))
sketch13.addConstraint(Sketcher.Constraint("Tangent", 2, 2, 3, 2))
sketch13.addConstraint(Sketcher.Constraint("Coincident", 3, 1, 0, 2))
sketch13.addConstraint(Sketcher.Constraint("Coincident", 5, 1, 6, 2))
sketch13.addConstraint(Sketcher.Constraint("Tangent", 6, 1, 7, 1))
sketch13.addConstraint(Sketcher.Constraint("Coincident", 7, 2, 8, 2))
sketch13.addConstraint(Sketcher.Constraint("Tangent", 8, 1, 5, 2))
sketch13.addConstraint(Sketcher.Constraint("Coincident", 0, 3, -1, 1))
sketch13.addConstraint(Sketcher.Constraint("Coincident", 5, 3, -1, 1))
sketch13.addConstraint(Sketcher.Constraint("Coincident", 4, 3, 2, 3))
sketch13.addConstraint(Sketcher.Constraint("Coincident", 8, 3, 1, 3))
sketch13.addConstraint(Sketcher.Constraint("Coincident", 9, 3, 7, 3))
sketch13.addConstraint(Sketcher.Constraint("Equal", 0, 5))
sketch13.addConstraint(Sketcher.Constraint("Equal", 3, 6))
sketch13.addConstraint(Sketcher.Constraint("Equal", 2, 7))
sketch13.addConstraint(Sketcher.Constraint("Equal", 4, 9))
sketch13.addConstraint(Sketcher.Constraint("Vertical", 4, 3, 7, 3))
sketch13.addConstraint(Sketcher.Constraint("Vertical", 9, 3, 1, 1))
sketch13.addConstraint(Sketcher.Constraint("Vertical", 1, 1, 7, 2))
sketch13.addConstraint(Sketcher.Constraint("Diameter", 4, 7.0))
sketch13.addConstraint(Sketcher.Constraint("Radius", 0, 44.0))
sketch13.addConstraint(Sketcher.Constraint("Radius", 2, 5.0))
sketch13.addConstraint(Sketcher.Constraint("Radius", 3, 25.0))
sketch13.addConstraint(Sketcher.Constraint("DistanceY", 1, 3, 2, 3, 27.0))
sketch13.addConstraint(Sketcher.Constraint("DistanceX", -1, 1, 5, 1, 27.5))
sketch13.addConstraint(Sketcher.Constraint("Radius", 1, 66.63705))
sketch13.addConstraint(Sketcher.Constraint("DistanceX", 3, 3, 1, 3, 67.811301))
sketch13.addConstraint(Sketcher.Constraint("DistanceX", -1, 1, 3, 1, 29.668582))
pad6 = body.newObject("PartDesign::Pad", "Pad005")
pad6.Profile = sketch13
pad6.Length = 30

sketch14 = body.newObject("Sketcher::SketchObject", "Sketch013")
sketch14.AttachmentSupport = (doc.getObject("XY_Plane"), [""])
sketch14.MapMode = "FlatFace"
sketch14.AttachmentOffset = App.Placement(V(0, 0, 20), App.Rotation())
sketch14.addGeometry(Part.ArcOfCircle(Part.Circle(V(42.789734, 53.772624, 0), V(0, 0, 1), 25), math.radians(-121.657882), math.radians(-80.579025)), False)
sketch14.addGeometry(Part.ArcOfCircle(Part.Circle(V(0, 0, 0), V(0, 0, 1), 44), math.radians(-1.461979), math.radians(47.601275)), False)
sketch14.addGeometry(Part.ArcOfCircle(Part.Circle(V(110.601035, -2.822745, 0), V(0, 0, 1), 66.63705), math.radians(160.722322), math.radians(178.538022)), False)
sketch14.addGeometry(Part.ArcOfCircle(Part.Circle(V(47.700348, 24.177255, 0), V(0, 0, 1), 5), math.radians(-90), math.radians(0)), False)
sketch14.addGeometry(Part.ArcOfCircle(Part.Circle(V(47.700348, 24.177255, 0), V(0, 0, 1), 5), math.radians(0), math.radians(99.420975)), False)
sketch14.addGeometry(Part.Circle(V(47.700348, 24.177255, 0), V(0, 0, 1), 3.5), False)
sketch14.addGeometry(Part.ArcOfCircle(Part.Circle(V(110.601035, -2.822745, 0), V(0, 0, 1), 66.63705), math.radians(178.538022), math.radians(199.277678)), False)
sketch14.addGeometry(Part.ArcOfCircle(Part.Circle(V(0, 0, 0), V(0, 0, 1), 44), math.radians(-51.317813), math.radians(-1.461979)), False)
sketch14.addGeometry(Part.ArcOfCircle(Part.Circle(V(36.522544, -57.662585, 0), V(0, 0, 1), 25), math.radians(68.124347), math.radians(111.155585)), False)
sketch14.addGeometry(Part.ArcOfCircle(Part.Circle(V(47.700348, -29.822745, 0), V(0, 0, 1), 5), math.radians(-111.875653), math.radians(0)), False)
sketch14.addGeometry(Part.ArcOfCircle(Part.Circle(V(47.700348, -29.822745, 0), V(0, 0, 1), 5), math.radians(0), math.radians(90)), False)
sketch14.addGeometry(Part.Circle(V(47.700348, -29.822745, 0), V(0, 0, 1), 3.5), False)
sketch14.addConstraint(Sketcher.Constraint("Coincident", 0, 1, 1, 2))
sketch14.addConstraint(Sketcher.Constraint("Tangent", 1, 1, 2, 2))
sketch14.addConstraint(Sketcher.Constraint("Coincident", 2, 1, 3, 1))
sketch14.addConstraint(Sketcher.Constraint("Tangent", 3, 2, 4, 1))
sketch14.addConstraint(Sketcher.Constraint("Tangent", 4, 2, 0, 2))
sketch14.addConstraint(Sketcher.Constraint("Tangent", 6, 1, 7, 2))
sketch14.addConstraint(Sketcher.Constraint("Coincident", 7, 1, 8, 2))
sketch14.addConstraint(Sketcher.Constraint("Tangent", 8, 1, 9, 1))
sketch14.addConstraint(Sketcher.Constraint("Tangent", 9, 2, 10, 1))
sketch14.addConstraint(Sketcher.Constraint("Coincident", 10, 2, 6, 2))
sketch14.addConstraint(Sketcher.Constraint("Coincident", 1, 3, -1, 1))
sketch14.addConstraint(Sketcher.Constraint("Coincident", 7, 3, -1, 1))
sketch14.addConstraint(Sketcher.Constraint("Coincident", 5, 3, 3, 3))
sketch14.addConstraint(Sketcher.Constraint("Coincident", 6, 3, 2, 3))
sketch14.addConstraint(Sketcher.Constraint("Coincident", 11, 3, 9, 3))
sketch14.addConstraint(Sketcher.Constraint("Equal", 3, 4))
sketch14.addConstraint(Sketcher.Constraint("Equal", 2, 6))
sketch14.addConstraint(Sketcher.Constraint("Equal", 0, 8))
sketch14.addConstraint(Sketcher.Constraint("Equal", 4, 9))
sketch14.addConstraint(Sketcher.Constraint("Equal", 9, 10))
sketch14.addConstraint(Sketcher.Constraint("Equal", 5, 11))
sketch14.addConstraint(Sketcher.Constraint("Horizontal", 5, 3, 3, 2))
sketch14.addConstraint(Sketcher.Constraint("Horizontal", 11, 3, 9, 2))
sketch14.addConstraint(Sketcher.Constraint("Vertical", 5, 3, 9, 3))
sketch14.addConstraint(Sketcher.Constraint("Vertical", 11, 3, 2, 1))
sketch14.addConstraint(Sketcher.Constraint("Vertical", 2, 1, 10, 2))
sketch14.addConstraint(Sketcher.Constraint("Diameter", 5, 7.0))
sketch14.addConstraint(Sketcher.Constraint("Radius", 0, 25.0))
sketch14.addConstraint(Sketcher.Constraint("Radius", 1, 44.0))
sketch14.addConstraint(Sketcher.Constraint("Radius", 3, 5.0))
sketch14.addConstraint(Sketcher.Constraint("DistanceY", 2, 3, 3, 3, 27.0))
sketch14.addConstraint(Sketcher.Constraint("DistanceX", -1, 1, 7, 1, 27.5))
sketch14.addConstraint(Sketcher.Constraint("Radius", 2, 66.63705))
sketch14.addConstraint(Sketcher.Constraint("DistanceX", 0, 3, 2, 3, 67.811301))
sketch14.addConstraint(Sketcher.Constraint("DistanceX", -1, 1, 0, 1, 29.668582))
pocket8 = body.newObject("PartDesign::Pocket", "Pocket007")
pocket8.Profile = sketch14
pocket8.Length = 10
pocket8.Reversed = True

sketch15 = body.newObject("Sketcher::SketchObject", "Sketch014")
sketch15.AttachmentSupport = (doc.getObject("XY_Plane"), [""])
sketch15.MapMode = "FlatFace"
sketch15.addGeometry(Part.ArcOfCircle(Part.Circle(V(0, 0, 0), V(0, 0, 1), 44), math.radians(-1.461978), math.radians(47.601275)), False)
sketch15.addGeometry(Part.ArcOfCircle(Part.Circle(V(42.789734, 53.772624, 0), V(0, 0, 1), 25), math.radians(-121.657882), math.radians(-80.579025)), False)
sketch15.addGeometry(Part.ArcOfCircle(Part.Circle(V(47.700348, 24.177255, 0), V(0, 0, 1), 5), math.radians(-90), math.radians(99.420975)), False)
sketch15.addGeometry(Part.ArcOfCircle(Part.Circle(V(110.601035, -2.822745, 0), V(0, 0, 1), 66.63705), math.radians(160.722322), math.radians(178.538022)), False)
sketch15.addGeometry(Part.Circle(V(47.700348, 24.177255, 0), V(0, 0, 1), 3.5), False)
sketch15.addGeometry(Part.ArcOfCircle(Part.Circle(V(0, 0, 0), V(0, 0, 1), 44), math.radians(-51.317813), math.radians(-1.461978)), False)
sketch15.addGeometry(Part.ArcOfCircle(Part.Circle(V(110.601035, -2.822745, 0), V(0, 0, 1), 66.63705), math.radians(178.538022), math.radians(199.277678)), False)
sketch15.addGeometry(Part.ArcOfCircle(Part.Circle(V(47.700348, -29.822745, 0), V(0, 0, 1), 5), math.radians(-111.875653), math.radians(90)), False)
sketch15.addGeometry(Part.ArcOfCircle(Part.Circle(V(36.522544, -57.662585, 0), V(0, 0, 1), 25), math.radians(68.124347), math.radians(111.155585)), False)
sketch15.addGeometry(Part.Circle(V(47.700348, -29.822745, 0), V(0, 0, 1), 3.5), False)
sketch15.addConstraint(Sketcher.Constraint("Coincident", 0, 2, 1, 1))
sketch15.addConstraint(Sketcher.Constraint("Tangent", 1, 2, 2, 2))
sketch15.addConstraint(Sketcher.Constraint("Coincident", 2, 1, 3, 1))
sketch15.addConstraint(Sketcher.Constraint("Tangent", 3, 2, 0, 1))
sketch15.addConstraint(Sketcher.Constraint("Tangent", 5, 2, 6, 1))
sketch15.addConstraint(Sketcher.Constraint("Coincident", 6, 2, 7, 2))
sketch15.addConstraint(Sketcher.Constraint("Tangent", 7, 1, 8, 1))
sketch15.addConstraint(Sketcher.Constraint("Coincident", 8, 2, 5, 1))
sketch15.addConstraint(Sketcher.Constraint("Coincident", 0, 3, -1, 1))
sketch15.addConstraint(Sketcher.Constraint("Coincident", 5, 3, -1, 1))
sketch15.addConstraint(Sketcher.Constraint("Coincident", 4, 3, 2, 3))
sketch15.addConstraint(Sketcher.Constraint("Coincident", 6, 3, 3, 3))
sketch15.addConstraint(Sketcher.Constraint("Coincident", 9, 3, 7, 3))
sketch15.addConstraint(Sketcher.Constraint("Equal", 0, 5))
sketch15.addConstraint(Sketcher.Constraint("Equal", 2, 7))
sketch15.addConstraint(Sketcher.Constraint("Equal", 1, 8))
sketch15.addConstraint(Sketcher.Constraint("Equal", 4, 9))
sketch15.addConstraint(Sketcher.Constraint("Vertical", 4, 3, 7, 3))
sketch15.addConstraint(Sketcher.Constraint("Vertical", 9, 3, 2, 1))
sketch15.addConstraint(Sketcher.Constraint("Vertical", 2, 1, 6, 2))
sketch15.addConstraint(Sketcher.Constraint("Diameter", 4, 7.0))
sketch15.addConstraint(Sketcher.Constraint("Radius", 0, 44.0))
sketch15.addConstraint(Sketcher.Constraint("Radius", 1, 25.0))
sketch15.addConstraint(Sketcher.Constraint("Radius", 2, 5.0))
sketch15.addConstraint(Sketcher.Constraint("DistanceY", 3, 3, 2, 3, 27.0))
sketch15.addConstraint(Sketcher.Constraint("DistanceX", -1, 1, 8, 2, 27.5))
sketch15.addConstraint(Sketcher.Constraint("Radius", 3, 66.63705))
sketch15.addConstraint(Sketcher.Constraint("DistanceX", 1, 3, 3, 3, 67.811301))
sketch15.addConstraint(Sketcher.Constraint("DistanceX", -1, 1, 0, 2, 29.668582))
pocket9 = body.newObject("PartDesign::Pocket", "Pocket008")
pocket9.Profile = sketch15
pocket9.Length = 10
pocket9.Reversed = True

doc.recompute()
